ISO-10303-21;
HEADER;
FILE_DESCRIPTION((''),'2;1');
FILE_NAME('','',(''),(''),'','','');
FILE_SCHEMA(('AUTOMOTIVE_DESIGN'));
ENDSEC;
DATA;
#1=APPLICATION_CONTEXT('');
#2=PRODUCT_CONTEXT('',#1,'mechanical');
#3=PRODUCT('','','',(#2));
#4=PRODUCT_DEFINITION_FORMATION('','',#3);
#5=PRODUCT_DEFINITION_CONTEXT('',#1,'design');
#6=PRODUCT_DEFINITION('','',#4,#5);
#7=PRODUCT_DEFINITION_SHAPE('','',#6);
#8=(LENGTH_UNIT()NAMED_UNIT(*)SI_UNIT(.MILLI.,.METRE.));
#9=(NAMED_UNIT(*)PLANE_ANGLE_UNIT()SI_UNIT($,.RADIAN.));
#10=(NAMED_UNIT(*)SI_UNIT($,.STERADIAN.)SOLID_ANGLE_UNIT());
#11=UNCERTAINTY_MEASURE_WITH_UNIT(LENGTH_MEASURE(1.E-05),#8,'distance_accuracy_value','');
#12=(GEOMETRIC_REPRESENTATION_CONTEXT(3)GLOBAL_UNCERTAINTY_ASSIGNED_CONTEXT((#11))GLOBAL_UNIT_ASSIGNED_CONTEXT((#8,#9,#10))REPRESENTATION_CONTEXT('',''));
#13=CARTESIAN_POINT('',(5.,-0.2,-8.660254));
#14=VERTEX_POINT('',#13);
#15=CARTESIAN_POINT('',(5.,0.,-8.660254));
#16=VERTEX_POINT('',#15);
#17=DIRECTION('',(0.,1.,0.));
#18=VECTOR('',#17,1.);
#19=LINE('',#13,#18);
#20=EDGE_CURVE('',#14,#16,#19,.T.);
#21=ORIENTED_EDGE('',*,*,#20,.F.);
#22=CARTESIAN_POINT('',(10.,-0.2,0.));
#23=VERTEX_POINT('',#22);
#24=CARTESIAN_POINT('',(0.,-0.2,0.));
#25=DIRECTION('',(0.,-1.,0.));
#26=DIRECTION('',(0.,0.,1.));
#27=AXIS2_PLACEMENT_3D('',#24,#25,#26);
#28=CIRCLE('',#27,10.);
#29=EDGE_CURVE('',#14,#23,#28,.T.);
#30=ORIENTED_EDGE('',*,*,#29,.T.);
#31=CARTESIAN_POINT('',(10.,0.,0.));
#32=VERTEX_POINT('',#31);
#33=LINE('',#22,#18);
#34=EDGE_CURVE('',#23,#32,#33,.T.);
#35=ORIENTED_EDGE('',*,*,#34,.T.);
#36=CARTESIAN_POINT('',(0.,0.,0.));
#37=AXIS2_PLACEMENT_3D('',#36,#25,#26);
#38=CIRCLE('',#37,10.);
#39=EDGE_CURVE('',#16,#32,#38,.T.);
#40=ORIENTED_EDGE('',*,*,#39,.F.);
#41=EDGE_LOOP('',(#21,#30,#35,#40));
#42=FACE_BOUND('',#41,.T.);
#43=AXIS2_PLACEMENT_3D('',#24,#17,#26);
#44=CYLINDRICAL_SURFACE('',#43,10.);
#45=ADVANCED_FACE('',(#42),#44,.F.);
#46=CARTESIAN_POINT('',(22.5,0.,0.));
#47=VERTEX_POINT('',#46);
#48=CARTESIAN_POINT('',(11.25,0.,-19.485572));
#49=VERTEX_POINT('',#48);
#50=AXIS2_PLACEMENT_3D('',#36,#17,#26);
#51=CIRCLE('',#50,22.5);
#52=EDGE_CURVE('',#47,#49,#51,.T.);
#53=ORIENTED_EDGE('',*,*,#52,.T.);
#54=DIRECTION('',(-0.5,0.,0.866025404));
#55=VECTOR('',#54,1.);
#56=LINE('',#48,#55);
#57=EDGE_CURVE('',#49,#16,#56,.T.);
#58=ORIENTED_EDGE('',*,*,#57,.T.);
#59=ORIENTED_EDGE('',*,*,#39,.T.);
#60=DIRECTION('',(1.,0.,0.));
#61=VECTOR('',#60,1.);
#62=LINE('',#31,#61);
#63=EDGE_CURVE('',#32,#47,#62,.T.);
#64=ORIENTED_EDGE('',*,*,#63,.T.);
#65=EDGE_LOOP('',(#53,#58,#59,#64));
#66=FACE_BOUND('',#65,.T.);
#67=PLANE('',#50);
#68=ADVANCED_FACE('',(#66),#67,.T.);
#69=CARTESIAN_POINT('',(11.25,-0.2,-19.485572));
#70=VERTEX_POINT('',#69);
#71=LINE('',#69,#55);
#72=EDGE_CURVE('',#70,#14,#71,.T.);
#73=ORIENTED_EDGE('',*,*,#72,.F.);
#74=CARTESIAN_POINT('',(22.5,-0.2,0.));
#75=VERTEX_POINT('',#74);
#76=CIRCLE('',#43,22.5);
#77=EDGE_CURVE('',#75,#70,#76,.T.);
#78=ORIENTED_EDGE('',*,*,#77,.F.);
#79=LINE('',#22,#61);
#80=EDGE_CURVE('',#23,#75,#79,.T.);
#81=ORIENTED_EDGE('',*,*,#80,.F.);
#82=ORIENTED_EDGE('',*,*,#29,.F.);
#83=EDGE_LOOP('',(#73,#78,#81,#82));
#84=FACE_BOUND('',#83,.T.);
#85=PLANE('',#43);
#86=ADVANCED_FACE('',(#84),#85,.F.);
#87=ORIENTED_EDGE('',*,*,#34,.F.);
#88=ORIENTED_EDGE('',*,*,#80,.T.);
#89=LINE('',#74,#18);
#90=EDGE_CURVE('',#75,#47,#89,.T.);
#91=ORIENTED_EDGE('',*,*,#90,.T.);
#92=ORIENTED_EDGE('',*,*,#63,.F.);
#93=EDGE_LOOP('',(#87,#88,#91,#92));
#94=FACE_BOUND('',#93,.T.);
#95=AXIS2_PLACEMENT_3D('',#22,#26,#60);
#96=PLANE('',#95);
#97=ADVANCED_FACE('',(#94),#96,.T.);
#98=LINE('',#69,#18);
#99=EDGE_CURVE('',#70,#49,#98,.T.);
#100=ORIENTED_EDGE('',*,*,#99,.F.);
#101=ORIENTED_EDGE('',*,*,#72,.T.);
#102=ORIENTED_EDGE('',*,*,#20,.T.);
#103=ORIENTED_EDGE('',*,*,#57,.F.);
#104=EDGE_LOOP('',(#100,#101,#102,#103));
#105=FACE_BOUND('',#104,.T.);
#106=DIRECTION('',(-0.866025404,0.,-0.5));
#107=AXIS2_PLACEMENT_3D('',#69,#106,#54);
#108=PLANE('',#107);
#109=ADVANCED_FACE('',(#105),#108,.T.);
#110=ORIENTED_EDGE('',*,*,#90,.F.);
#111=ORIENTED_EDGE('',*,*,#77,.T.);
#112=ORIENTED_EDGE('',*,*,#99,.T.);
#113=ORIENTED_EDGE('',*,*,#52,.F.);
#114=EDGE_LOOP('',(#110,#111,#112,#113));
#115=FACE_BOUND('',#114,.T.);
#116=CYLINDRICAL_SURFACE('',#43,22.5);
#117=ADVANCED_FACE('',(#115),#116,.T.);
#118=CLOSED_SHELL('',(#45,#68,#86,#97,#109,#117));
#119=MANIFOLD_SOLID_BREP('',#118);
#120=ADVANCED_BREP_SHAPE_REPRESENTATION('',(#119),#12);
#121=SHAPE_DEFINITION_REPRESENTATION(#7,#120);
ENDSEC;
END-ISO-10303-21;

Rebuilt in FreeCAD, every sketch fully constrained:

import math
import FreeCAD as App
import Part
import Sketcher
Q = App.Units.Quantity

doc = App.newDocument("Part")
body = doc.addObject("PartDesign::Body", "Body")

sketch1 = body.newObject("Sketcher::SketchObject", "Sketch")
sketch1.AttachmentSupport = (doc.getObject("XZ_Plane"), [""])
sketch1.MapMode = "FlatFace"
sketch1.addGeometry([
    Part.LineSegment(App.Vector(10, 0, 0), App.Vector(22, 0, 0)),
    Part.ArcOfCircle(Part.Circle(App.Vector(0, 0, 0), App.Vector(0, 0, 1), 22), math.radians(-60), math.radians(0)),
    Part.LineSegment(App.Vector(11, -19, 0), App.Vector(5, -9, 0)),
    Part.ArcOfCircle(Part.Circle(App.Vector(0, 0, 0), App.Vector(0, 0, 1), 10), math.radians(-60), math.radians(0)),
], False)
sketch1.addConstraint([
    Sketcher.Constraint("Coincident", 0, 2, 1, 2),
    Sketcher.Constraint("Coincident", 1, 1, 2, 1),
    Sketcher.Constraint("Coincident", 2, 2, 3, 1),
    Sketcher.Constraint("Coincident", 3, 2, 0, 1),
    Sketcher.Constraint("Horizontal", 0),
    Sketcher.Constraint("Coincident", 1, 3, -1, 1),
    Sketcher.Constraint("Coincident", 3, 3, -1, 1),
    Sketcher.Constraint("PointOnObject", 0, 2, -1),
    Sketcher.Constraint("Radius", 3, 10.0),
    Sketcher.Constraint("Radius", 1, 22.5),
    Sketcher.Constraint("Angle", 2, Q("120 deg")),
    Sketcher.Constraint("DistanceX", -1, 1, 2, 2, 5.0),
])
pad1 = body.newObject("PartDesign::Pad", "Pad")
pad1.Profile = sketch1
pad1.Length = 0.2

doc.recompute()
